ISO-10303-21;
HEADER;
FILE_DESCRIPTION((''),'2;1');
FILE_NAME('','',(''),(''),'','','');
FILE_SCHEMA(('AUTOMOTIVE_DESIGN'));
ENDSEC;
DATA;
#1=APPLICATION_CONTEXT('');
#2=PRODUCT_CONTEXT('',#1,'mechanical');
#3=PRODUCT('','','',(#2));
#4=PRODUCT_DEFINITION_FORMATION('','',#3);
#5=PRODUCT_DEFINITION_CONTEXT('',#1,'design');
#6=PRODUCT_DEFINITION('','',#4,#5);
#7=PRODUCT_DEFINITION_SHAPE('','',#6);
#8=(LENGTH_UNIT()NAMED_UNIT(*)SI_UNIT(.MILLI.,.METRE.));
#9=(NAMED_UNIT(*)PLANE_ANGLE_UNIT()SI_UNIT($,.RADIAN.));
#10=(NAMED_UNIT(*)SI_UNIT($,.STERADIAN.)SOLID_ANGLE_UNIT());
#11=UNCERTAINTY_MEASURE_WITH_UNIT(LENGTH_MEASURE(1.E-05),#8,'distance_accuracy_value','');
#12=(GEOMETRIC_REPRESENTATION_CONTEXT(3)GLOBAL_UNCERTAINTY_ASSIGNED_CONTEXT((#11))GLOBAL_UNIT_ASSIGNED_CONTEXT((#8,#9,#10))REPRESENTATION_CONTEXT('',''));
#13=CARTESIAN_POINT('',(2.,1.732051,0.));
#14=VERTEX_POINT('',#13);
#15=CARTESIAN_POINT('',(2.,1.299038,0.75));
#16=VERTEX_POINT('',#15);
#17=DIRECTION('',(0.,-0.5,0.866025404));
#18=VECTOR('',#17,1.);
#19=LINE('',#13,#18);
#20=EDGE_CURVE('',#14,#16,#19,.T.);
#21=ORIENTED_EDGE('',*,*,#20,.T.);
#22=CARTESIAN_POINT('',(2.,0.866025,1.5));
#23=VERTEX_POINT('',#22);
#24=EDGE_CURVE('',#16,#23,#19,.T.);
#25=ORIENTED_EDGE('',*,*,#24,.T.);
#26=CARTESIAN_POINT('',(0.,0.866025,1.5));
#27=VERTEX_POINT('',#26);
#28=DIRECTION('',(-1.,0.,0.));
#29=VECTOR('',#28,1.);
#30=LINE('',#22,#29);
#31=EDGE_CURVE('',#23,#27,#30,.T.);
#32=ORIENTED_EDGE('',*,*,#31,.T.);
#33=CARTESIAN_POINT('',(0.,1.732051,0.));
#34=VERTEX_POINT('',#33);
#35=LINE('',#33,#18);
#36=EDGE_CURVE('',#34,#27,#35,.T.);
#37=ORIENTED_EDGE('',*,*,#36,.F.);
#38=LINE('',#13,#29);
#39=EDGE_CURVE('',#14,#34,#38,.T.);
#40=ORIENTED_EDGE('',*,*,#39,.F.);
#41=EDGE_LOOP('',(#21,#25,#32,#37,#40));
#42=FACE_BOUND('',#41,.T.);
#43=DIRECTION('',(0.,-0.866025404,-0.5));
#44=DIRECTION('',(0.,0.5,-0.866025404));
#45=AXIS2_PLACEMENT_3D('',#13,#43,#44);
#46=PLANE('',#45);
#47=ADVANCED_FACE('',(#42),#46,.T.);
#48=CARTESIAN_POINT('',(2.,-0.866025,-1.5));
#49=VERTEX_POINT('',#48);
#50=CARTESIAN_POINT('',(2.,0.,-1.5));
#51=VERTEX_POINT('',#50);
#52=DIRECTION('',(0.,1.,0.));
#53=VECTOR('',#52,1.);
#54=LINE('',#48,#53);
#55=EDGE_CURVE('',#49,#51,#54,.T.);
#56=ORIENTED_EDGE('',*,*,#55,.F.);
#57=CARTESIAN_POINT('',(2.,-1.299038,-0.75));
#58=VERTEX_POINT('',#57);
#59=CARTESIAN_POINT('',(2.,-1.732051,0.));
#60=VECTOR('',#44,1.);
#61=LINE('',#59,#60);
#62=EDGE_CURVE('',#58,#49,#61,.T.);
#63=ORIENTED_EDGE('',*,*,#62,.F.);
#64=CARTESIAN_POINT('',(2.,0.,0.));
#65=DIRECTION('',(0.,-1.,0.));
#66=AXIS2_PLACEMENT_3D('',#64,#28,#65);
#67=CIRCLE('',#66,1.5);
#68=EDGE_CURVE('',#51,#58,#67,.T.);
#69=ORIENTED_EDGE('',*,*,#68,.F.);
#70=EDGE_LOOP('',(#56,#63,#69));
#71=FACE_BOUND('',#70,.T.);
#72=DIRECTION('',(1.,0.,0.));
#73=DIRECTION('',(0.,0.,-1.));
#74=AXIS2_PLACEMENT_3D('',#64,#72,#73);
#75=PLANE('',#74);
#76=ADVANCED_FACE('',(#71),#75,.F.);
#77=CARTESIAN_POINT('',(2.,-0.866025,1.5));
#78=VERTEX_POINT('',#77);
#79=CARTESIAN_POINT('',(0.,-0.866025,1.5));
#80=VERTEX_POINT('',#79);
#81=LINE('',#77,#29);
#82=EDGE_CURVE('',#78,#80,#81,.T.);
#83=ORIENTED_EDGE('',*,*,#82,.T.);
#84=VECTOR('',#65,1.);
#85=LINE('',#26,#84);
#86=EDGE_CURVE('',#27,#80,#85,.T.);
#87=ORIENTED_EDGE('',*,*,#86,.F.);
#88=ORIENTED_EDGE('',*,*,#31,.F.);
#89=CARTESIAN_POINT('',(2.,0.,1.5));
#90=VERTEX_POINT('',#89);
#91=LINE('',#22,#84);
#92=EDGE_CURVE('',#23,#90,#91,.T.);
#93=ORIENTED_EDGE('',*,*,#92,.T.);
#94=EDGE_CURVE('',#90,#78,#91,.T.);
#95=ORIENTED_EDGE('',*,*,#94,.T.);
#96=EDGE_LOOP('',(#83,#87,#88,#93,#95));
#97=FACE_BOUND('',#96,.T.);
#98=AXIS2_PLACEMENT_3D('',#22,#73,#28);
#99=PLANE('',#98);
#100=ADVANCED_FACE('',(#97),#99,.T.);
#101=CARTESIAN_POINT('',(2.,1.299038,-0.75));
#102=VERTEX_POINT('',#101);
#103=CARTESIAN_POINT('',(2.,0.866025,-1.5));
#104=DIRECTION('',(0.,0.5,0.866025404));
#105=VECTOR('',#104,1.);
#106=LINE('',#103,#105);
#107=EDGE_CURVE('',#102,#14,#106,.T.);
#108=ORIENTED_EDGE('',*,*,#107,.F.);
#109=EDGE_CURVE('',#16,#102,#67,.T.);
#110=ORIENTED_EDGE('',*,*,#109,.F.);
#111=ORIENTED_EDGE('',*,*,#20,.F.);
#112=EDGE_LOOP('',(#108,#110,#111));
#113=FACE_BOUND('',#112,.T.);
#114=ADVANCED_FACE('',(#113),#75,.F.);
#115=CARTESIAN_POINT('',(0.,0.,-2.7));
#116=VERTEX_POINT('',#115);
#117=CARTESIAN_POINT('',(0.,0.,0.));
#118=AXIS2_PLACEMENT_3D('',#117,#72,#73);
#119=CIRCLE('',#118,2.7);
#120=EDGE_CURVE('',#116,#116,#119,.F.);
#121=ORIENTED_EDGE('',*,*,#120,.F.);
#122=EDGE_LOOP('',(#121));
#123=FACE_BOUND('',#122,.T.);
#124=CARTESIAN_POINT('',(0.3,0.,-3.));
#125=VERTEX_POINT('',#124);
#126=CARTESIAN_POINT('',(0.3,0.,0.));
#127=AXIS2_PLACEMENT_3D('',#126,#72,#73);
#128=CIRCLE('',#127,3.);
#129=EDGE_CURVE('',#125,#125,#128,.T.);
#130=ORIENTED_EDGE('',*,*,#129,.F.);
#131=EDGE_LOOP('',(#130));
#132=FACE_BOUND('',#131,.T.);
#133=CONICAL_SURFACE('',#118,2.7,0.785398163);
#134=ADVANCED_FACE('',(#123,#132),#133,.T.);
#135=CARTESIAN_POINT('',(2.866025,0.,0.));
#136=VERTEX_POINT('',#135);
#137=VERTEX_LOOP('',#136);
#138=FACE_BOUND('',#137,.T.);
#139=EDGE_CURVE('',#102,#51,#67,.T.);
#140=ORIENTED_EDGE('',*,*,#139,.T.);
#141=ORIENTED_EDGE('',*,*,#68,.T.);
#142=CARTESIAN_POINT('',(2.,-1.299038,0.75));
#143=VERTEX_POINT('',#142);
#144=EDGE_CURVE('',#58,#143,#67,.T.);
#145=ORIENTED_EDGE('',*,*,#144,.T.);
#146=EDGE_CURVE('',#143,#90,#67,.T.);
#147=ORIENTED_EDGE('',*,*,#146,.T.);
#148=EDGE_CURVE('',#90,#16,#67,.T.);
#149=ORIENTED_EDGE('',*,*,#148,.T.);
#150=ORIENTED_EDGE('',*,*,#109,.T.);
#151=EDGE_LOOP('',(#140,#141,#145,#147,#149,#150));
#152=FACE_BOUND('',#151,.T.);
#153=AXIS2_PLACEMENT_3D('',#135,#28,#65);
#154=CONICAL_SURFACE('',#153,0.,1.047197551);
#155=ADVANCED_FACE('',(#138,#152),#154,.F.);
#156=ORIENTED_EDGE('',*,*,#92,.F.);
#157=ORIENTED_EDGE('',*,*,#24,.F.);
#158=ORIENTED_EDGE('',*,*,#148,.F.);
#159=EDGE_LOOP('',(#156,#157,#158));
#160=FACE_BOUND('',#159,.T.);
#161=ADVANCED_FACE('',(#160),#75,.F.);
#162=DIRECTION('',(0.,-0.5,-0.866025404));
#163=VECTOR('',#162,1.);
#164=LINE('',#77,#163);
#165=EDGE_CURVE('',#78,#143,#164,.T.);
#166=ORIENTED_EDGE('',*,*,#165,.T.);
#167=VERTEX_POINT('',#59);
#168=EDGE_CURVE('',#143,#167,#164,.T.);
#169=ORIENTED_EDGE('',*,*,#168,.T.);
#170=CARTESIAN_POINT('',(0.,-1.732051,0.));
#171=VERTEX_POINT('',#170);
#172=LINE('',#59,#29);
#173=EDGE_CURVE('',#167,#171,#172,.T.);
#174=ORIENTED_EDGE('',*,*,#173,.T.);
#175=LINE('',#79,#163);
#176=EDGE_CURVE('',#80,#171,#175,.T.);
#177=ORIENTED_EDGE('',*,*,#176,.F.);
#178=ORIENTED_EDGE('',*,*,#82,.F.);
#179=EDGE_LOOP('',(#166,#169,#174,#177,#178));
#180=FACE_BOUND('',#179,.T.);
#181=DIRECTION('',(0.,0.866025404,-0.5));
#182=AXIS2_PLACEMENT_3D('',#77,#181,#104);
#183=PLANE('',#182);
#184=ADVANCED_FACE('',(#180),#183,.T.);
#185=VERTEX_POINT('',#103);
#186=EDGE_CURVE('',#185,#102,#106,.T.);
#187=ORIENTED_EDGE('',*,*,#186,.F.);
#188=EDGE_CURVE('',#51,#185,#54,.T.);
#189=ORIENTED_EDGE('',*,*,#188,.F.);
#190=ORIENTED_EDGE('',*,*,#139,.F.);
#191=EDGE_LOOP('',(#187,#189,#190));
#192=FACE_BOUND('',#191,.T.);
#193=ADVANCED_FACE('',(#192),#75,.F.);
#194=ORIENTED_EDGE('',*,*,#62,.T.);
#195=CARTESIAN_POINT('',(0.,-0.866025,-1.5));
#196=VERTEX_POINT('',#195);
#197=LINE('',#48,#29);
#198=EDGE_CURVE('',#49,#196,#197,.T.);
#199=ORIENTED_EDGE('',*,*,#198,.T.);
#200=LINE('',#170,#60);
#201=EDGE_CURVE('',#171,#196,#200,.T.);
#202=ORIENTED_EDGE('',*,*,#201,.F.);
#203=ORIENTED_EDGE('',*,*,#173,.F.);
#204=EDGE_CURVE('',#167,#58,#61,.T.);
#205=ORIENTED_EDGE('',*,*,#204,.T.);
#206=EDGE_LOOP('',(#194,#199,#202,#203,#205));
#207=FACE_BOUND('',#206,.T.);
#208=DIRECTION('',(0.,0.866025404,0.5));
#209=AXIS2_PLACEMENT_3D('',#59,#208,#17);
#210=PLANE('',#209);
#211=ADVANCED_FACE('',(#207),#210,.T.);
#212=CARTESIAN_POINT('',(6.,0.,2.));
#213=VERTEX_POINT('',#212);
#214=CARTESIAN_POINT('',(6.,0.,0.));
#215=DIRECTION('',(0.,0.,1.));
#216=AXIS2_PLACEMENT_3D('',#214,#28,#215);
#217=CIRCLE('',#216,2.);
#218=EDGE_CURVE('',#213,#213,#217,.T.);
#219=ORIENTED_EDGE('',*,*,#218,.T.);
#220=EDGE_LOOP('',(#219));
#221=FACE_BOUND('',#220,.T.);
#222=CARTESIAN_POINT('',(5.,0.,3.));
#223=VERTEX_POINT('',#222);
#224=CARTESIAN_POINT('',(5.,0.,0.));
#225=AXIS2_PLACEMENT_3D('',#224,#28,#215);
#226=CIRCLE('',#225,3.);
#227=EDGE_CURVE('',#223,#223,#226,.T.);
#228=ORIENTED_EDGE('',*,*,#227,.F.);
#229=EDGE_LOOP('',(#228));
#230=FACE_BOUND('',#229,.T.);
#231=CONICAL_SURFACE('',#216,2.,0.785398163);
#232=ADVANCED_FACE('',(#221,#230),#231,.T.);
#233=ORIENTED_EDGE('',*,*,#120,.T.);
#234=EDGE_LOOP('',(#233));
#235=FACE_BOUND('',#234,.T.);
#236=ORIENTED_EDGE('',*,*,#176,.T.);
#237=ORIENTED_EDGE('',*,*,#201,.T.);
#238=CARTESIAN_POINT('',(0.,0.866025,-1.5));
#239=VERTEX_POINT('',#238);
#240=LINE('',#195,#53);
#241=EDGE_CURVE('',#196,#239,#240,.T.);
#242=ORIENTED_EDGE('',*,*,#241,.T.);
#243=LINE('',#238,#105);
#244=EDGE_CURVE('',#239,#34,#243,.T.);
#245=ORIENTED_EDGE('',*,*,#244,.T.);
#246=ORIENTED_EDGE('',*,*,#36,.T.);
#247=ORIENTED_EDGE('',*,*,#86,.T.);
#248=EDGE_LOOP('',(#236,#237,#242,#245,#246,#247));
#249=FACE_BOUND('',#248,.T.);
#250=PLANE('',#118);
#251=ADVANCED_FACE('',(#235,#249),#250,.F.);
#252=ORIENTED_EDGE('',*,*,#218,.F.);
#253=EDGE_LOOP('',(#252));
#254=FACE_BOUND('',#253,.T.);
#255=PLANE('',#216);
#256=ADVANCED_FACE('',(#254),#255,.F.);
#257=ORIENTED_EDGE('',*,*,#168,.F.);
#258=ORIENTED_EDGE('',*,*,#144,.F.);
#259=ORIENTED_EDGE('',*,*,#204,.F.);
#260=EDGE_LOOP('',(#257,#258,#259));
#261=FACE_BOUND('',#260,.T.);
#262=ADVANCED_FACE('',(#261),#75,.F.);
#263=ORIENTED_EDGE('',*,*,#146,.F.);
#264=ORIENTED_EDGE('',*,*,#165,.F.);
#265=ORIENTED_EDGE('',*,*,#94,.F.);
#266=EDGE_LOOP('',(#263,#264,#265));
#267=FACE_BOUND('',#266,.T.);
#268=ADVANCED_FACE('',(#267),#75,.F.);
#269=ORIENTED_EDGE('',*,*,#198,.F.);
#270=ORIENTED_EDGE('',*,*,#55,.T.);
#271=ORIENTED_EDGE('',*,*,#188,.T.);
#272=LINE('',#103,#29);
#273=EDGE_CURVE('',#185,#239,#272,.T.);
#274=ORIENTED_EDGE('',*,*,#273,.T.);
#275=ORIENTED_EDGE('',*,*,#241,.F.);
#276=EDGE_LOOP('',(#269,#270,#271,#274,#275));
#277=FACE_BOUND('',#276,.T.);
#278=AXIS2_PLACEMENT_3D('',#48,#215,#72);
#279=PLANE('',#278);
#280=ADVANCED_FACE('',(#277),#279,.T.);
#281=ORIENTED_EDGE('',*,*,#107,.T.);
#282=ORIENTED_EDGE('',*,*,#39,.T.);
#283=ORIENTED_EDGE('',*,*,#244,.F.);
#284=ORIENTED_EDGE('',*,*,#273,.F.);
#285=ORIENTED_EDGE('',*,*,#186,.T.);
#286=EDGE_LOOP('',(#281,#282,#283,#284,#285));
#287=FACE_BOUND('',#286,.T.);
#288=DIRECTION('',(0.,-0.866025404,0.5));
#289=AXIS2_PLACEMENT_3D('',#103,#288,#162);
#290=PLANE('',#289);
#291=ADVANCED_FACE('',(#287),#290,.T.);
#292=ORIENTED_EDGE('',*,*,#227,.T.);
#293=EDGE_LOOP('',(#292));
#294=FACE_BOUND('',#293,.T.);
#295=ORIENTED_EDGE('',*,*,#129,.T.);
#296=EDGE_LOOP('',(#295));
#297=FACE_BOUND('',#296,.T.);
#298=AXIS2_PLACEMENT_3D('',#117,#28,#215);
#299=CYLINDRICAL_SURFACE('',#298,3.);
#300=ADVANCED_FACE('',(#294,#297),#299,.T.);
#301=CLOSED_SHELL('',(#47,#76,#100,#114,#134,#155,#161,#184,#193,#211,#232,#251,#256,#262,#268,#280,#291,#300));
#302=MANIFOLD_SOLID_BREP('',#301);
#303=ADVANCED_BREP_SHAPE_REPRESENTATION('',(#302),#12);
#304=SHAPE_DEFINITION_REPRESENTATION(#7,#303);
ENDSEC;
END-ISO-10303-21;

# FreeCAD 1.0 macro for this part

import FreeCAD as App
import Part
import Sketcher
Q = App.Units.Quantity


def edges_at(feature, points):
    """Names of the edges that pass closest to the given points."""
    edges = feature.Shape.Edges
    near = lambda p: min(range(len(edges)), key=lambda i: edges[i].distToShape(Part.Vertex(*p))[0])
    return sorted({f"Edge{near(p) + 1}" for p in points})


def add_polygon(sketch, points):
    """Adds a closed chain of lines whose ends are joined by coincident constraints."""
    first, n = sketch.GeometryCount, len(points)
    for a, b in zip(points, points[1:] + points[:1]):
        sketch.addGeometry(Part.LineSegment(App.Vector(*a, 0), App.Vector(*b, 0)), False)
    for i in range(n):
        sketch.addConstraint(Sketcher.Constraint("Coincident", first + i, 2, first + (i + 1) % n, 1))

doc = App.newDocument("Part")
body = doc.addObject("PartDesign::Body", "Body")

# Sketch on XY plane
sketch1 = body.newObject("Sketcher::SketchObject", "Sketch")
sketch1.AttachmentSupport = (doc.getObject("XY_Plane"), [""])
sketch1.MapMode = "FlatFace"
add_polygon(sketch1, [(6, 2), (5, 3), (0, 3), (0, 0), (6, 0)])  # lines 0-4
sketch1.addConstraint(Sketcher.Constraint("Horizontal", 1))
sketch1.addConstraint(Sketcher.Constraint("Vertical", 2))
sketch1.addConstraint(Sketcher.Constraint("Horizontal", 3))
sketch1.addConstraint(Sketcher.Constraint("Vertical", 4))
sketch1.addConstraint(Sketcher.Constraint("Coincident", 2, 2, -1, 1))
sketch1.addConstraint(Sketcher.Constraint("DistanceX", 1, 2, 1, 1, Q("5 mm")))
sketch1.addConstraint(Sketcher.Constraint("DistanceX", 3, 1, 3, 2, Q("6 mm")))
sketch1.addConstraint(Sketcher.Constraint("DistanceY", 2, 2, 2, 1, Q("3 mm")))
sketch1.addConstraint(Sketcher.Constraint("DistanceY", 4, 1, 4, 2, Q("2 mm")))
revolution = body.newObject("PartDesign::Revolution", "Revolution")
revolution.Profile = sketch1
revolution.ReferenceAxis = (sketch1, ["H_Axis"])
revolution.Angle = 360
doc.recompute()

chamfer = body.newObject("PartDesign::Chamfer", "Chamfer")
chamfer.Base = (revolution, edges_at(revolution, [(0, 0, -3)]))
chamfer.Size = 0.3

# Sketch on YZ plane
sketch2 = body.newObject("Sketcher::SketchObject", "Sketch001")
sketch2.AttachmentSupport = (doc.getObject("YZ_Plane"), [""])
sketch2.MapMode = "FlatFace"
add_polygon(sketch2, [(1.7, 0), (0.9, 1.5), (-0.9, 1.5), (-1.7, 0), (-0.9, -1.5), (0.9, -1.5)])  # lines 0-5
sketch2.addConstraint(Sketcher.Constraint("Horizontal", 1))
sketch2.addConstraint(Sketcher.Constraint("Horizontal", 4))
sketch2.addConstraint(Sketcher.Constraint("Symmetric", 0, 2, 3, 2, -1, 1))
sketch2.addConstraint(Sketcher.Constraint("Symmetric", 2, 2, 5, 2, -1, 1))
sketch2.addConstraint(Sketcher.Constraint("PointOnObject", 2, 2, -1))
sketch2.addConstraint(Sketcher.Constraint("Parallel", 2, 5))
sketch2.addConstraint(Sketcher.Constraint("Vertical", 1, 2, 3, 2))
sketch2.addConstraint(Sketcher.Constraint("Angle", 0, Q("120 deg")))
sketch2.addConstraint(Sketcher.Constraint("DistanceY", 3, 2, 1, 2, Q("3 mm")))
sketch2.addConstraint(Sketcher.Constraint("DistanceX", 1, 2, 1, 1, Q("1.732051 mm")))
pocket1 = body.newObject("PartDesign::Pocket", "Pocket")
pocket1.Profile = sketch2
pocket1.Length = 2
pocket1.Reversed = True

# Sketch on XY plane
sketch3 = body.newObject("Sketcher::SketchObject", "Sketch002")
sketch3.AttachmentSupport = (doc.getObject("XY_Plane"), [""])
sketch3.MapMode = "FlatFace"
add_polygon(sketch3, [(2.9, 0), (2, 1.5), (2, 0)])  # lines 0-2
sketch3.addConstraint(Sketcher.Constraint("Vertical", 1))
sketch3.addConstraint(Sketcher.Constraint("Horizontal", 2))
sketch3.addConstraint(Sketcher.Constraint("PointOnObject", 1, 2, -1))
sketch3.addConstraint(Sketcher.Constraint("Angle", 0, Q("120 deg")))
sketch3.addConstraint(Sketcher.Constraint("DistanceY", 1, 2, 1, 1, Q("1.5 mm")))
sketch3.addConstraint(Sketcher.Constraint("DistanceX", -1, 1, 0, 2, Q("2 mm")))
groove = body.newObject("PartDesign::Groove", "Groove")
groove.Profile = sketch3
groove.ReferenceAxis = (sketch3, ["H_Axis"])
groove.Angle = 360

doc.recompute()
